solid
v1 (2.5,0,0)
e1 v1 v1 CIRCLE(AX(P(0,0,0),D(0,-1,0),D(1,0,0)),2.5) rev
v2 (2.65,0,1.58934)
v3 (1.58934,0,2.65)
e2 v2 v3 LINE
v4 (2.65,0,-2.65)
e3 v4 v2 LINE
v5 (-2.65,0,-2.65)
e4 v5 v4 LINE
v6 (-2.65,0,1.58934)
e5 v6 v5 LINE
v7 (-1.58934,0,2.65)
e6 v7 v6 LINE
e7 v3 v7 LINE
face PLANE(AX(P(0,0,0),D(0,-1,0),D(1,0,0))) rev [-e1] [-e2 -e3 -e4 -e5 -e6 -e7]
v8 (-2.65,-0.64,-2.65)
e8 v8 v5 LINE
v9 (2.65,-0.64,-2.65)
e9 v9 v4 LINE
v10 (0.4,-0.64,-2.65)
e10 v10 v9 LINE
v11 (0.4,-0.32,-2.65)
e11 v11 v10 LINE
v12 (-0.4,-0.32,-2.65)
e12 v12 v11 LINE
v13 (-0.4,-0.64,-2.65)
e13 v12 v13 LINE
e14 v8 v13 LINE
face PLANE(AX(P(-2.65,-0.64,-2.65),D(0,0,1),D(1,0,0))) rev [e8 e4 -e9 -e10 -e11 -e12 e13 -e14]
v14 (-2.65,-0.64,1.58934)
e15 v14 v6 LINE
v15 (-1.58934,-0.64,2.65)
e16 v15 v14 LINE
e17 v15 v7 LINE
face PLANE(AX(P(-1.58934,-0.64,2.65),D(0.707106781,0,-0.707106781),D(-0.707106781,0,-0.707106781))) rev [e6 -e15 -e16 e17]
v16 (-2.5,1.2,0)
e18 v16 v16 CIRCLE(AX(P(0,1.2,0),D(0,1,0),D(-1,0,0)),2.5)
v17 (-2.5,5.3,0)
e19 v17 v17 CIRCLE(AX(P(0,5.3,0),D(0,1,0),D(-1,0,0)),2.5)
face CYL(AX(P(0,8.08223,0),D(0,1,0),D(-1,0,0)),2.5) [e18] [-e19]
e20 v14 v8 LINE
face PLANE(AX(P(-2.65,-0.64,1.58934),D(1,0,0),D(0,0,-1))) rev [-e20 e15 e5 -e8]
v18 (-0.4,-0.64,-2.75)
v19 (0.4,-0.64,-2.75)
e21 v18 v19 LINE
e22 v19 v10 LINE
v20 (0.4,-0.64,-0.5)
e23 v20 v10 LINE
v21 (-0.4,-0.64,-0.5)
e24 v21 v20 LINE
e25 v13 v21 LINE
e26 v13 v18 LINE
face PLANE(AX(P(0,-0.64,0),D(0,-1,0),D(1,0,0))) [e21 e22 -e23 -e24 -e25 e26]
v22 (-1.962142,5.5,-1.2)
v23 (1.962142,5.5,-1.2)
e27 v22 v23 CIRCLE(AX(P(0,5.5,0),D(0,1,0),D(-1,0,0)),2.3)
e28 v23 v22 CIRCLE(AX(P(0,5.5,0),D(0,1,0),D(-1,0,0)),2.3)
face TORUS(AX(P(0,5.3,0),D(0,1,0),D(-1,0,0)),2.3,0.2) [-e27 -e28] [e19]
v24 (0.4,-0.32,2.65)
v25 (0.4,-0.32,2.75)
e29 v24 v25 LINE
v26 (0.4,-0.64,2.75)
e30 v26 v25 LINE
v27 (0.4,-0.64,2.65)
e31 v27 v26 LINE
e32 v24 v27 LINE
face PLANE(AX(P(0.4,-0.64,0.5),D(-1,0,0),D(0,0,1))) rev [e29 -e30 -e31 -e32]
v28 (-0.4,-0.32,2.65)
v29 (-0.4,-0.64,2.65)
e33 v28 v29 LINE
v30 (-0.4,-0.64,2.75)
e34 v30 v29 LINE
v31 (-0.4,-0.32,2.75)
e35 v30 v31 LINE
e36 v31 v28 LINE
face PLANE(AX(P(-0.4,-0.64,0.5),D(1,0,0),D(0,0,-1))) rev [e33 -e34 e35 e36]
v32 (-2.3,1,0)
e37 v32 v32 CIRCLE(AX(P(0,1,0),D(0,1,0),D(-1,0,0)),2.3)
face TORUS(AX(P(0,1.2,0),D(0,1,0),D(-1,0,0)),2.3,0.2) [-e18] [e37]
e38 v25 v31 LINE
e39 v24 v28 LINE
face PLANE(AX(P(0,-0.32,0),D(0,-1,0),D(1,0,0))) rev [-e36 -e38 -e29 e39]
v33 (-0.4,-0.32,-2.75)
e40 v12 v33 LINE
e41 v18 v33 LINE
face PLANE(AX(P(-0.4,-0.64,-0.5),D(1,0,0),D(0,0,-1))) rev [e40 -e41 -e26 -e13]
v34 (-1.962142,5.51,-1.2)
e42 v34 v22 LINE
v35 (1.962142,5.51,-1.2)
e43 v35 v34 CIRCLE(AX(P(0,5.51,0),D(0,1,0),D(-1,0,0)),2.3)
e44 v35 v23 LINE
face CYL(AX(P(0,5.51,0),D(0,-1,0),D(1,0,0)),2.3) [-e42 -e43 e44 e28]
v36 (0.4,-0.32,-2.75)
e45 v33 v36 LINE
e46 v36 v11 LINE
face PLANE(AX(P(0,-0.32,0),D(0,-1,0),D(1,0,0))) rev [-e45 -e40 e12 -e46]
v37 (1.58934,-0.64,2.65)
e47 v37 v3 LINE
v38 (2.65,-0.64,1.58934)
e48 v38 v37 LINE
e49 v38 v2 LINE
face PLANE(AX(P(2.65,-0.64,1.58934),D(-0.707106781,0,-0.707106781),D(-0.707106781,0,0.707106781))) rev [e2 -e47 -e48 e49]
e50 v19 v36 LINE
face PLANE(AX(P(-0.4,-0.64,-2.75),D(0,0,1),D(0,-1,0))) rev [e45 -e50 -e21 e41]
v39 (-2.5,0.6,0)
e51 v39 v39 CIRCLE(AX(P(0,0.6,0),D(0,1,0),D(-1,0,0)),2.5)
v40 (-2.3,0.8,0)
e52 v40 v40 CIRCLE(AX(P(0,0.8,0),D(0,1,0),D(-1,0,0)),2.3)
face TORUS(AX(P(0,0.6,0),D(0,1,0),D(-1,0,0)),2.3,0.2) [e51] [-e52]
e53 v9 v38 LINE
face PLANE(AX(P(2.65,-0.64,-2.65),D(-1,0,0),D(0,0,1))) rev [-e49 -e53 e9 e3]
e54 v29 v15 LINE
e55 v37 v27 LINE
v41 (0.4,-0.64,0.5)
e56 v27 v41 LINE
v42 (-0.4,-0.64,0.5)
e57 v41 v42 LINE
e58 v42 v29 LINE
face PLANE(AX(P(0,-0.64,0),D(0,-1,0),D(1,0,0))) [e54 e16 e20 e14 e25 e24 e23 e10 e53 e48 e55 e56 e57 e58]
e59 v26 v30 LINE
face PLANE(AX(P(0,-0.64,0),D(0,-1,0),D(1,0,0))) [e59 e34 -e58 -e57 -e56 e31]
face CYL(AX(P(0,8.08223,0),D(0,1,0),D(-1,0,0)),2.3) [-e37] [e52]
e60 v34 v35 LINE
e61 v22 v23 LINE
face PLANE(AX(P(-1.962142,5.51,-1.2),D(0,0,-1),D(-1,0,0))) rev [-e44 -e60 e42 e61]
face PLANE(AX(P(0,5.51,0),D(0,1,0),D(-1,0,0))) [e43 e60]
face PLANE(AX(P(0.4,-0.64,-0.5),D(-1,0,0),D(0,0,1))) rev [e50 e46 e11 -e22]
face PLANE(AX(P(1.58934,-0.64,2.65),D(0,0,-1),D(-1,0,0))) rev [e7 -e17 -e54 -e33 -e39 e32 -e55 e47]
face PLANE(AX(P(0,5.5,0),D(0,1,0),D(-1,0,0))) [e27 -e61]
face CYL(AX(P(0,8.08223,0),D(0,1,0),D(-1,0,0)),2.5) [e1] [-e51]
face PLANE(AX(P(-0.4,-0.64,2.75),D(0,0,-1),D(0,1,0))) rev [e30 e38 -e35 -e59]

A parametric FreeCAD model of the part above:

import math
import FreeCAD as App
import Part
import Sketcher

V = App.Vector


def add_polygon(sketch, points):
    """Adds a closed chain of lines whose ends are joined by coincident constraints."""
    first, n = sketch.GeometryCount, len(points)
    for a, b in zip(points, points[1:] + points[:1]):
        sketch.addGeometry(Part.LineSegment(App.Vector(*a, 0), App.Vector(*b, 0)), False)
    for i in range(n):
        sketch.addConstraint(Sketcher.Constraint("Coincident", first + i, 2, first + (i + 1) % n, 1))

doc = App.newDocument("Part")
body = doc.addObject("PartDesign::Body", "Body")

# Sketch on XY plane
sketch1 = body.newObject("Sketcher::SketchObject", "Sketch")
sketch1.AttachmentSupport = (doc.getObject("XY_Plane"), [""])
sketch1.MapMode = "FlatFace"
sketch1.addGeometry([
    Part.LineSegment(V(0, 5.5, 0), V(-2.3, 5.5, 0)),  # 0
    Part.ArcOfCircle(Part.Circle(V(-2.3, 5.3, 0), V(0, 0, 1), 0.2), math.radians(90), math.radians(180)),  # 1
    Part.LineSegment(V(-2.5, 5.3, 0), V(-2.5, 1.2, 0)),  # 2
    Part.ArcOfCircle(Part.Circle(V(-2.3, 1.2, 0), V(0, 0, 1), 0.2), math.radians(-180), math.radians(-90)),  # 3
    Part.LineSegment(V(-2.3, 1, 0), V(-2.3, 0.8, 0)),  # 4
    Part.ArcOfCircle(Part.Circle(V(-2.3, 0.6, 0), V(0, 0, 1), 0.2), math.radians(90), math.radians(180)),  # 5
    Part.LineSegment(V(-2.5, 0.6, 0), V(-2.5, 0, 0)),  # 6
    Part.LineSegment(V(-2.5, 0, 0), V(0, 0, 0)),  # 7
    Part.LineSegment(V(0, 0, 0), V(0, 5.5, 0)),  # 8
], False)
sketch1.addConstraint([
    Sketcher.Constraint("Tangent", 0, 2, 1, 1),
    Sketcher.Constraint("Tangent", 1, 2, 2, 1),
    Sketcher.Constraint("Tangent", 2, 2, 3, 1),
    Sketcher.Constraint("Coincident", 3, 2, 4, 1),
    Sketcher.Constraint("Coincident", 4, 2, 5, 1),
    Sketcher.Constraint("Tangent", 5, 2, 6, 1),
    Sketcher.Constraint("Coincident", 6, 2, 7, 1),
    Sketcher.Constraint("Coincident", 7, 2, 8, 1),
    Sketcher.Constraint("Coincident", 8, 2, 0, 1),
    Sketcher.Constraint("Horizontal", 0),
    Sketcher.Constraint("Vertical", 2),
    Sketcher.Constraint("Vertical", 4),
    Sketcher.Constraint("Vertical", 6),
    Sketcher.Constraint("Horizontal", 7),
    Sketcher.Constraint("Vertical", 8),
    Sketcher.Constraint("Coincident", 7, 2, -1, 1),
    Sketcher.Constraint("Equal", 1, 3),
    Sketcher.Constraint("Equal", 3, 5),
    Sketcher.Constraint("Vertical", 3, 3, 5, 3),
    Sketcher.Constraint("Vertical", 0, 2, 3, 2),
    Sketcher.Constraint("Radius", 1, 0.2),
    Sketcher.Constraint("DistanceX", 0, 2, 0, 1, 2.3),
    Sketcher.Constraint("DistanceY", 2, 2, 2, 1, 4.1),
    Sketcher.Constraint("DistanceY", 4, 2, 4, 1, 0.2),
    Sketcher.Constraint("DistanceY", 6, 2, 6, 1, 0.6),
])
revolution = body.newObject("PartDesign::Revolution", "Revolution")
revolution.Profile = sketch1
revolution.ReferenceAxis = (sketch1, ["V_Axis"])
revolution.Angle = 360

# Sketch on XZ plane
sketch2 = body.newObject("Sketcher::SketchObject", "Sketch001")
sketch2.AttachmentSupport = (doc.getObject("XZ_Plane"), [""])
sketch2.MapMode = "FlatFace"
sketch2.AttachmentOffset = App.Placement(V(0, 0, -5.5), App.Rotation())
sketch2.addGeometry([
    Part.LineSegment(V(-2, -1.2, 0), V(2, -1.2, 0)),
    Part.ArcOfCircle(Part.Circle(V(0, 0, 0), V(0, 0, 1), 2.3), math.radians(-149), math.radians(-31)),
], False)
sketch2.addConstraint([
    Sketcher.Constraint("Coincident", 0, 1, 1, 1),
    Sketcher.Constraint("Coincident", 1, 2, 0, 2),
    Sketcher.Constraint("Horizontal", 0),
    Sketcher.Constraint("Coincident", 1, 3, -1, 1),
    Sketcher.Constraint("Radius", 1, 2.3),
    Sketcher.Constraint("DistanceY", 0, 1, -1, 1, 1.2),
])
pad1 = body.newObject("PartDesign::Pad", "Pad")
pad1.Profile = sketch2
pad1.Length = 0.01
pad1.Reversed = True

# Sketch on XZ plane
sketch3 = body.newObject("Sketcher::SketchObject", "Sketch002")
sketch3.AttachmentSupport = (doc.getObject("XZ_Plane"), [""])
sketch3.MapMode = "FlatFace"
add_polygon(sketch3, [(-1.6, 2.6), (-2.6, 1.6), (-2.6, -2.6), (2.6, -2.6), (2.6, 1.6), (1.6, 2.6)])  # lines 0-5
sketch3.addConstraint([
    Sketcher.Constraint("Vertical", 1),
    Sketcher.Constraint("Horizontal", 2),
    Sketcher.Constraint("Vertical", 3),
    Sketcher.Constraint("Horizontal", 5),
    Sketcher.Constraint("Symmetric", 0, 2, 3, 2, -2),
    Sketcher.Constraint("Perpendicular", 0, 4),
    Sketcher.Constraint("Equal", 0, 4),
    Sketcher.Constraint("DistanceX", 2, 1, 2, 2, 5.3),
    Sketcher.Constraint("Distance", 0, 1.5),
    Sketcher.Constraint("DistanceY", 2, 2, 4, 2, 5.3),
    Sketcher.Constraint("DistanceY", 1, 2, -1, 1, 2.65),
])
pad2 = body.newObject("PartDesign::Pad", "Pad001")
pad2.Profile = sketch3
pad2.Length = 0.64

# Sketch on XZ plane
sketch4 = body.newObject("Sketcher::SketchObject", "Sketch003")
sketch4.AttachmentSupport = (doc.getObject("XZ_Plane"), [""])
sketch4.MapMode = "FlatFace"
sketch4.AttachmentOffset = App.Placement(V(0, 0, 0.64), App.Rotation())
add_polygon(sketch4, [(-0.4, -0.5), (-0.4, -2.6), (0.4, -2.6), (0.4, -0.5)])  # lines 0-3
add_polygon(sketch4, [(-0.4, 0.5), (0.4, 0.5), (0.4, 2.6), (-0.4, 2.6)])  # lines 4-7
sketch4.addConstraint([
    Sketcher.Constraint("Vertical", 0),
    Sketcher.Constraint("Horizontal", 1),
    Sketcher.Constraint("Vertical", 2),
    Sketcher.Constraint("Horizontal", 3),
    Sketcher.Constraint("Horizontal", 4),
    Sketcher.Constraint("Vertical", 5),
    Sketcher.Constraint("Horizontal", 6),
    Sketcher.Constraint("Vertical", 7),
    Sketcher.Constraint("Symmetric", 3, 2, 4, 2, -1, 1),
    Sketcher.Constraint("Symmetric", 1, 2, 6, 2, -1, 1),
    Sketcher.Constraint("Vertical", 2, 2, 4, 2),
    Sketcher.Constraint("DistanceX", 1, 1, 1, 2, 0.8),
    Sketcher.Constraint("DistanceY", 2, 2, 4, 2, 1.0),
    Sketcher.Constraint("DistanceY", 0, 2, 0, 1, 2.15),
])
pocket1 = body.newObject("PartDesign::Pocket", "Pocket")
pocket1.Profile = sketch4
pocket1.Length = 0.32

# Sketch on XZ plane
sketch5 = body.newObject("Sketcher::SketchObject", "Sketch004")
sketch5.AttachmentSupport = (doc.getObject("XZ_Plane"), [""])
sketch5.MapMode = "FlatFace"
sketch5.AttachmentOffset = App.Placement(V(0, 0, 0.32), App.Rotation())
add_polygon(sketch5, [(-0.4, -0.5), (-0.4, -2.8), (0.4, -2.8), (0.4, -0.5)])  # lines 0-3
add_polygon(sketch5, [(-0.4, 2.8), (-0.4, 0.5), (0.4, 0.5), (0.4, 2.8)])  # lines 4-7
sketch5.addConstraint([
    Sketcher.Constraint("Vertical", 0),
    Sketcher.Constraint("Horizontal", 1),
    Sketcher.Constraint("Vertical", 2),
    Sketcher.Constraint("Horizontal", 3),
    Sketcher.Constraint("Vertical", 4),
    Sketcher.Constraint("Horizontal", 5),
    Sketcher.Constraint("Vertical", 6),
    Sketcher.Constraint("Horizontal", 7),
    Sketcher.Constraint("Symmetric", 2, 2, 4, 2, -1, 1),
    Sketcher.Constraint("Symmetric", 0, 2, 6, 2, -1, 1),
    Sketcher.Constraint("Vertical", 3, 2, 4, 2),
    Sketcher.Constraint("DistanceX", 1, 1, 1, 2, 0.8),
    Sketcher.Constraint("DistanceY", 3, 2, 4, 2, 1.0),
    Sketcher.Constraint("DistanceY", 0, 2, 0, 1, 2.25),
])
pad3 = body.newObject("PartDesign::Pad", "Pad002")
pad3.Profile = sketch5
pad3.Length = 0.32

doc.recompute()
